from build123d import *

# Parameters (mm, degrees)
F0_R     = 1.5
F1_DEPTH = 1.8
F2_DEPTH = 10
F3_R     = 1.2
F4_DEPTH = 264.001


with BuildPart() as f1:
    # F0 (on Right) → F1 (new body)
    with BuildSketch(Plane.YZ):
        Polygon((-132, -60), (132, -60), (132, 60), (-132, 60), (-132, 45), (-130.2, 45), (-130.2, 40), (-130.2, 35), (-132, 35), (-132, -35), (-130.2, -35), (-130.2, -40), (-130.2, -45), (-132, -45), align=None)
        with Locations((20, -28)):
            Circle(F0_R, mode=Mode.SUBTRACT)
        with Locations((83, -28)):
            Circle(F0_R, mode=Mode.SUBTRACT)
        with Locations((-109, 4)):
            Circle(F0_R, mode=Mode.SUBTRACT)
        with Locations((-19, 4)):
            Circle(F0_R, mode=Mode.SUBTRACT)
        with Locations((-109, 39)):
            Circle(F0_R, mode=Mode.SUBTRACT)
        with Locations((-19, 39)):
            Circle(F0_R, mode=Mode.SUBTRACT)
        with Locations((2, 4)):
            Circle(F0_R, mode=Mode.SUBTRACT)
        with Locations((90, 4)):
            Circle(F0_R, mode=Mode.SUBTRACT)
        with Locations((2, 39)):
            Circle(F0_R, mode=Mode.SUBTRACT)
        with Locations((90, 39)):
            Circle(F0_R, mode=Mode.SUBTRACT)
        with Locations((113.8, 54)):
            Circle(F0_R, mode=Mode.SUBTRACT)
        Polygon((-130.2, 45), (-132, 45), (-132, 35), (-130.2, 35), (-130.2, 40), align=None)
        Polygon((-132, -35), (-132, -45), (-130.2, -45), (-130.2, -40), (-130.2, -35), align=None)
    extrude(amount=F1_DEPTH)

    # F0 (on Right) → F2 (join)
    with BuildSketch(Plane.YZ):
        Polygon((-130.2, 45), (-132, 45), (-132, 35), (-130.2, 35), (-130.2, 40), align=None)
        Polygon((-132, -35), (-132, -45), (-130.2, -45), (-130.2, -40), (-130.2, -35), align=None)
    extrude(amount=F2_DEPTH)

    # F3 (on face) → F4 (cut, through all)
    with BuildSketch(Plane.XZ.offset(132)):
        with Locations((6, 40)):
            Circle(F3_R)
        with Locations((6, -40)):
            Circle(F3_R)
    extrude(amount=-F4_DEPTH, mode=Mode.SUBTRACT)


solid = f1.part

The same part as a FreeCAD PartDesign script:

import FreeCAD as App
import Part
import Sketcher
from FreeCAD import Vector


def add_polygon(sketch, points):
    """Adds a closed chain of lines whose ends are joined by coincident constraints."""
    first, n = sketch.GeometryCount, len(points)
    for a, b in zip(points, points[1:] + points[:1]):
        sketch.addGeometry(Part.LineSegment(App.Vector(*a, 0), App.Vector(*b, 0)), False)
    for i in range(n):
        sketch.addConstraint(Sketcher.Constraint("Coincident", first + i, 2, first + (i + 1) % n, 1))

doc = App.newDocument("Part")
params = doc.addObject("Spreadsheet::Sheet", "Params")
for row, (alias, value) in enumerate([
    ("sketch1_diameter", "3 mm"),
    ("sketch1_width", "264 mm"),
    ("sketch1_height", "120 mm"),
    ("pad1_length", "1.8 mm"),
    ("sketch2_height", "10 mm"),
    ("sketch2_width", "1.8 mm"),
    ("pad2_length", "10 mm"),
    ("sketch3_diameter", "2.4 mm"),
], start=1):
    params.set(f"A{row}", alias)
    params.set(f"B{row}", "=" + value)
    params.setAlias(f"B{row}", alias)

body = doc.addObject("PartDesign::Body", "Body")

# Sketch on YZ plane
sketch1 = body.newObject("Sketcher::SketchObject", "Sketch")
sketch1.AttachmentSupport = (doc.getObject("YZ_Plane"), [""])
sketch1.MapMode = "FlatFace"
add_polygon(sketch1, [(-132, -60), (132, -60), (132, 60), (-132, 60)])  # lines 0-3
sketch1.addGeometry(Part.Circle(Vector(-109, 4, 0), Vector(0, 0, 1), 1.5), False)  # 4
sketch1.addGeometry(Part.Circle(Vector(-19, 4, 0), Vector(0, 0, 1), 1.5), False)  # 5
sketch1.addGeometry(Part.Circle(Vector(2, 4, 0), Vector(0, 0, 1), 1.5), False)  # 6
sketch1.addGeometry(Part.Circle(Vector(20, -28, 0), Vector(0, 0, 1), 1.5), False)  # 7
sketch1.addGeometry(Part.Circle(Vector(83, -28, 0), Vector(0, 0, 1), 1.5), False)  # 8
sketch1.addGeometry(Part.Circle(Vector(90, 4, 0), Vector(0, 0, 1), 1.5), False)  # 9
sketch1.addGeometry(Part.Circle(Vector(-109, 39, 0), Vector(0, 0, 1), 1.5), False)  # 10
sketch1.addGeometry(Part.Circle(Vector(-19, 39, 0), Vector(0, 0, 1), 1.5), False)  # 11
sketch1.addGeometry(Part.Circle(Vector(2, 39, 0), Vector(0, 0, 1), 1.5), False)  # 12
sketch1.addGeometry(Part.Circle(Vector(90, 39, 0), Vector(0, 0, 1), 1.5), False)  # 13
sketch1.addGeometry(Part.Circle(Vector(113.8, 54, 0), Vector(0, 0, 1), 1.5), False)  # 14
sketch1.addConstraint([
    Sketcher.Constraint("Horizontal", 0),
    Sketcher.Constraint("Vertical", 1),
    Sketcher.Constraint("Horizontal", 2),
    Sketcher.Constraint("Vertical", 3),
    Sketcher.Constraint("Equal", 4, 5),
    Sketcher.Constraint("Equal", 5, 6),
    Sketcher.Constraint("Equal", 6, 7),
    Sketcher.Constraint("Equal", 7, 8),
    Sketcher.Constraint("Equal", 8, 9),
    Sketcher.Constraint("Equal", 9, 10),
    Sketcher.Constraint("Equal", 10, 11),
    Sketcher.Constraint("Equal", 11, 12),
    Sketcher.Constraint("Equal", 12, 13),
    Sketcher.Constraint("Equal", 13, 14),
    Sketcher.Constraint("Symmetric", 0, 2, 2, 2, -1, 1),
    Sketcher.Constraint("Horizontal", 4, 3, 5, 3),
    Sketcher.Constraint("Horizontal", 5, 3, 6, 3),
    Sketcher.Constraint("Horizontal", 7, 3, 8, 3),
    Sketcher.Constraint("Horizontal", 6, 3, 9, 3),
    Sketcher.Constraint("Horizontal", 10, 3, 11, 3),
    Sketcher.Constraint("Horizontal", 11, 3, 12, 3),
    Sketcher.Constraint("Horizontal", 12, 3, 13, 3),
    Sketcher.Constraint("Vertical", 4, 3, 10, 3),
    Sketcher.Constraint("Vertical", 5, 3, 11, 3),
    Sketcher.Constraint("Vertical", 6, 3, 12, 3),
    Sketcher.Constraint("Vertical", 9, 3, 13, 3),
    Sketcher.Constraint("Diameter", 4, 3.0),
    Sketcher.Constraint("DistanceX", 0, 1, 0, 2, 264.0),
    Sketcher.Constraint("DistanceY", 1, 1, 1, 2, 120.0),
    Sketcher.Constraint("DistanceX", 4, 3, -1, 1, 109.0),
    Sketcher.Constraint("DistanceY", -1, 1, 4, 3, 4.0),
    Sketcher.Constraint("DistanceX", 5, 3, -1, 1, 19.0),
    Sketcher.Constraint("DistanceX", -1, 1, 6, 3, 2.0),
    Sketcher.Constraint("DistanceX", -1, 1, 7, 3, 20.0),
    Sketcher.Constraint("DistanceY", 7, 3, -1, 1, 28.0),
    Sketcher.Constraint("DistanceX", -1, 1, 8, 3, 83.0),
    Sketcher.Constraint("DistanceX", -1, 1, 9, 3, 90.0),
    Sketcher.Constraint("DistanceY", -1, 1, 10, 3, 39.0),
    Sketcher.Constraint("DistanceY", -1, 1, 14, 3, 54.0),
    Sketcher.Constraint("DistanceX", -1, 1, 14, 3, 113.8),
])
sketch1.setExpression("Constraints[30]", "Params.sketch1_diameter")
sketch1.setExpression("Constraints[31]", "Params.sketch1_width")
sketch1.setExpression("Constraints[32]", "Params.sketch1_height")
pad1 = body.newObject("PartDesign::Pad", "Pad")
pad1.Profile = sketch1
pad1.setExpression("Length", "Params.pad1_length")

# Sketch on YZ plane
sketch2 = body.newObject("Sketcher::SketchObject", "Sketch001")
sketch2.AttachmentSupport = (doc.getObject("YZ_Plane"), [""])
sketch2.MapMode = "FlatFace"
add_polygon(sketch2, [(-130.2, 45), (-132, 45), (-132, 35), (-130.2, 35)])  # lines 0-3
add_polygon(sketch2, [(-132, -35), (-132, -45), (-130.2, -45), (-130.2, -35)])  # lines 4-7
sketch2.addConstraint([
    Sketcher.Constraint("Horizontal", 0),
    Sketcher.Constraint("Vertical", 1),
    Sketcher.Constraint("Horizontal", 2),
    Sketcher.Constraint("Vertical", 3),
    Sketcher.Constraint("Vertical", 4),
    Sketcher.Constraint("Horizontal", 5),
    Sketcher.Constraint("Vertical", 6),
    Sketcher.Constraint("Horizontal", 7),
    Sketcher.Constraint("Symmetric", 0, 2, 4, 2, -1),
    Sketcher.Constraint("Symmetric", 2, 2, 6, 2, -1),
    Sketcher.Constraint("DistanceY", 1, 2, 1, 1, 10.0),
    Sketcher.Constraint("DistanceX", 0, 2, 0, 1, 1.8),
    Sketcher.Constraint("DistanceX", 0, 2, -1, 1, 132.0),
    Sketcher.Constraint("DistanceY", -1, 1, 0, 2, 45.0),
])
sketch2.setExpression("Constraints[18]", "Params.sketch2_height")
sketch2.setExpression("Constraints[19]", "Params.sketch2_width")
pad2 = body.newObject("PartDesign::Pad", "Pad001")
pad2.Profile = sketch2
pad2.setExpression("Length", "Params.pad2_length")

# Sketch on XZ plane
sketch3 = body.newObject("Sketcher::SketchObject", "Sketch002")
sketch3.AttachmentSupport = (doc.getObject("XZ_Plane"), [""])
sketch3.MapMode = "FlatFace"
sketch3.AttachmentOffset = App.Placement(Vector(0, 0, 132), App.Rotation())
sketch3.addGeometry([
    Part.Circle(Vector(6, 40, 0), Vector(0, 0, 1), 1.2),
    Part.Circle(Vector(6, -40, 0), Vector(0, 0, 1), 1.2),
], False)
sketch3.addConstraint([
    Sketcher.Constraint("Equal", 0, 1),
    Sketcher.Constraint("Symmetric", 0, 3, 1, 3, -1),
    Sketcher.Constraint("Diameter", 0, 2.4),
    Sketcher.Constraint("DistanceX", -1, 1, 0, 3, 6.0),
    Sketcher.Constraint("DistanceY", -1, 1, 0, 3, 40.0),
])
sketch3.setExpression("Constraints[2]", "Params.sketch3_diameter")
pocket1 = body.newObject("PartDesign::Pocket", "Pocket")
pocket1.Profile = sketch3
pocket1.Type = "ThroughAll"

doc.recompute()
